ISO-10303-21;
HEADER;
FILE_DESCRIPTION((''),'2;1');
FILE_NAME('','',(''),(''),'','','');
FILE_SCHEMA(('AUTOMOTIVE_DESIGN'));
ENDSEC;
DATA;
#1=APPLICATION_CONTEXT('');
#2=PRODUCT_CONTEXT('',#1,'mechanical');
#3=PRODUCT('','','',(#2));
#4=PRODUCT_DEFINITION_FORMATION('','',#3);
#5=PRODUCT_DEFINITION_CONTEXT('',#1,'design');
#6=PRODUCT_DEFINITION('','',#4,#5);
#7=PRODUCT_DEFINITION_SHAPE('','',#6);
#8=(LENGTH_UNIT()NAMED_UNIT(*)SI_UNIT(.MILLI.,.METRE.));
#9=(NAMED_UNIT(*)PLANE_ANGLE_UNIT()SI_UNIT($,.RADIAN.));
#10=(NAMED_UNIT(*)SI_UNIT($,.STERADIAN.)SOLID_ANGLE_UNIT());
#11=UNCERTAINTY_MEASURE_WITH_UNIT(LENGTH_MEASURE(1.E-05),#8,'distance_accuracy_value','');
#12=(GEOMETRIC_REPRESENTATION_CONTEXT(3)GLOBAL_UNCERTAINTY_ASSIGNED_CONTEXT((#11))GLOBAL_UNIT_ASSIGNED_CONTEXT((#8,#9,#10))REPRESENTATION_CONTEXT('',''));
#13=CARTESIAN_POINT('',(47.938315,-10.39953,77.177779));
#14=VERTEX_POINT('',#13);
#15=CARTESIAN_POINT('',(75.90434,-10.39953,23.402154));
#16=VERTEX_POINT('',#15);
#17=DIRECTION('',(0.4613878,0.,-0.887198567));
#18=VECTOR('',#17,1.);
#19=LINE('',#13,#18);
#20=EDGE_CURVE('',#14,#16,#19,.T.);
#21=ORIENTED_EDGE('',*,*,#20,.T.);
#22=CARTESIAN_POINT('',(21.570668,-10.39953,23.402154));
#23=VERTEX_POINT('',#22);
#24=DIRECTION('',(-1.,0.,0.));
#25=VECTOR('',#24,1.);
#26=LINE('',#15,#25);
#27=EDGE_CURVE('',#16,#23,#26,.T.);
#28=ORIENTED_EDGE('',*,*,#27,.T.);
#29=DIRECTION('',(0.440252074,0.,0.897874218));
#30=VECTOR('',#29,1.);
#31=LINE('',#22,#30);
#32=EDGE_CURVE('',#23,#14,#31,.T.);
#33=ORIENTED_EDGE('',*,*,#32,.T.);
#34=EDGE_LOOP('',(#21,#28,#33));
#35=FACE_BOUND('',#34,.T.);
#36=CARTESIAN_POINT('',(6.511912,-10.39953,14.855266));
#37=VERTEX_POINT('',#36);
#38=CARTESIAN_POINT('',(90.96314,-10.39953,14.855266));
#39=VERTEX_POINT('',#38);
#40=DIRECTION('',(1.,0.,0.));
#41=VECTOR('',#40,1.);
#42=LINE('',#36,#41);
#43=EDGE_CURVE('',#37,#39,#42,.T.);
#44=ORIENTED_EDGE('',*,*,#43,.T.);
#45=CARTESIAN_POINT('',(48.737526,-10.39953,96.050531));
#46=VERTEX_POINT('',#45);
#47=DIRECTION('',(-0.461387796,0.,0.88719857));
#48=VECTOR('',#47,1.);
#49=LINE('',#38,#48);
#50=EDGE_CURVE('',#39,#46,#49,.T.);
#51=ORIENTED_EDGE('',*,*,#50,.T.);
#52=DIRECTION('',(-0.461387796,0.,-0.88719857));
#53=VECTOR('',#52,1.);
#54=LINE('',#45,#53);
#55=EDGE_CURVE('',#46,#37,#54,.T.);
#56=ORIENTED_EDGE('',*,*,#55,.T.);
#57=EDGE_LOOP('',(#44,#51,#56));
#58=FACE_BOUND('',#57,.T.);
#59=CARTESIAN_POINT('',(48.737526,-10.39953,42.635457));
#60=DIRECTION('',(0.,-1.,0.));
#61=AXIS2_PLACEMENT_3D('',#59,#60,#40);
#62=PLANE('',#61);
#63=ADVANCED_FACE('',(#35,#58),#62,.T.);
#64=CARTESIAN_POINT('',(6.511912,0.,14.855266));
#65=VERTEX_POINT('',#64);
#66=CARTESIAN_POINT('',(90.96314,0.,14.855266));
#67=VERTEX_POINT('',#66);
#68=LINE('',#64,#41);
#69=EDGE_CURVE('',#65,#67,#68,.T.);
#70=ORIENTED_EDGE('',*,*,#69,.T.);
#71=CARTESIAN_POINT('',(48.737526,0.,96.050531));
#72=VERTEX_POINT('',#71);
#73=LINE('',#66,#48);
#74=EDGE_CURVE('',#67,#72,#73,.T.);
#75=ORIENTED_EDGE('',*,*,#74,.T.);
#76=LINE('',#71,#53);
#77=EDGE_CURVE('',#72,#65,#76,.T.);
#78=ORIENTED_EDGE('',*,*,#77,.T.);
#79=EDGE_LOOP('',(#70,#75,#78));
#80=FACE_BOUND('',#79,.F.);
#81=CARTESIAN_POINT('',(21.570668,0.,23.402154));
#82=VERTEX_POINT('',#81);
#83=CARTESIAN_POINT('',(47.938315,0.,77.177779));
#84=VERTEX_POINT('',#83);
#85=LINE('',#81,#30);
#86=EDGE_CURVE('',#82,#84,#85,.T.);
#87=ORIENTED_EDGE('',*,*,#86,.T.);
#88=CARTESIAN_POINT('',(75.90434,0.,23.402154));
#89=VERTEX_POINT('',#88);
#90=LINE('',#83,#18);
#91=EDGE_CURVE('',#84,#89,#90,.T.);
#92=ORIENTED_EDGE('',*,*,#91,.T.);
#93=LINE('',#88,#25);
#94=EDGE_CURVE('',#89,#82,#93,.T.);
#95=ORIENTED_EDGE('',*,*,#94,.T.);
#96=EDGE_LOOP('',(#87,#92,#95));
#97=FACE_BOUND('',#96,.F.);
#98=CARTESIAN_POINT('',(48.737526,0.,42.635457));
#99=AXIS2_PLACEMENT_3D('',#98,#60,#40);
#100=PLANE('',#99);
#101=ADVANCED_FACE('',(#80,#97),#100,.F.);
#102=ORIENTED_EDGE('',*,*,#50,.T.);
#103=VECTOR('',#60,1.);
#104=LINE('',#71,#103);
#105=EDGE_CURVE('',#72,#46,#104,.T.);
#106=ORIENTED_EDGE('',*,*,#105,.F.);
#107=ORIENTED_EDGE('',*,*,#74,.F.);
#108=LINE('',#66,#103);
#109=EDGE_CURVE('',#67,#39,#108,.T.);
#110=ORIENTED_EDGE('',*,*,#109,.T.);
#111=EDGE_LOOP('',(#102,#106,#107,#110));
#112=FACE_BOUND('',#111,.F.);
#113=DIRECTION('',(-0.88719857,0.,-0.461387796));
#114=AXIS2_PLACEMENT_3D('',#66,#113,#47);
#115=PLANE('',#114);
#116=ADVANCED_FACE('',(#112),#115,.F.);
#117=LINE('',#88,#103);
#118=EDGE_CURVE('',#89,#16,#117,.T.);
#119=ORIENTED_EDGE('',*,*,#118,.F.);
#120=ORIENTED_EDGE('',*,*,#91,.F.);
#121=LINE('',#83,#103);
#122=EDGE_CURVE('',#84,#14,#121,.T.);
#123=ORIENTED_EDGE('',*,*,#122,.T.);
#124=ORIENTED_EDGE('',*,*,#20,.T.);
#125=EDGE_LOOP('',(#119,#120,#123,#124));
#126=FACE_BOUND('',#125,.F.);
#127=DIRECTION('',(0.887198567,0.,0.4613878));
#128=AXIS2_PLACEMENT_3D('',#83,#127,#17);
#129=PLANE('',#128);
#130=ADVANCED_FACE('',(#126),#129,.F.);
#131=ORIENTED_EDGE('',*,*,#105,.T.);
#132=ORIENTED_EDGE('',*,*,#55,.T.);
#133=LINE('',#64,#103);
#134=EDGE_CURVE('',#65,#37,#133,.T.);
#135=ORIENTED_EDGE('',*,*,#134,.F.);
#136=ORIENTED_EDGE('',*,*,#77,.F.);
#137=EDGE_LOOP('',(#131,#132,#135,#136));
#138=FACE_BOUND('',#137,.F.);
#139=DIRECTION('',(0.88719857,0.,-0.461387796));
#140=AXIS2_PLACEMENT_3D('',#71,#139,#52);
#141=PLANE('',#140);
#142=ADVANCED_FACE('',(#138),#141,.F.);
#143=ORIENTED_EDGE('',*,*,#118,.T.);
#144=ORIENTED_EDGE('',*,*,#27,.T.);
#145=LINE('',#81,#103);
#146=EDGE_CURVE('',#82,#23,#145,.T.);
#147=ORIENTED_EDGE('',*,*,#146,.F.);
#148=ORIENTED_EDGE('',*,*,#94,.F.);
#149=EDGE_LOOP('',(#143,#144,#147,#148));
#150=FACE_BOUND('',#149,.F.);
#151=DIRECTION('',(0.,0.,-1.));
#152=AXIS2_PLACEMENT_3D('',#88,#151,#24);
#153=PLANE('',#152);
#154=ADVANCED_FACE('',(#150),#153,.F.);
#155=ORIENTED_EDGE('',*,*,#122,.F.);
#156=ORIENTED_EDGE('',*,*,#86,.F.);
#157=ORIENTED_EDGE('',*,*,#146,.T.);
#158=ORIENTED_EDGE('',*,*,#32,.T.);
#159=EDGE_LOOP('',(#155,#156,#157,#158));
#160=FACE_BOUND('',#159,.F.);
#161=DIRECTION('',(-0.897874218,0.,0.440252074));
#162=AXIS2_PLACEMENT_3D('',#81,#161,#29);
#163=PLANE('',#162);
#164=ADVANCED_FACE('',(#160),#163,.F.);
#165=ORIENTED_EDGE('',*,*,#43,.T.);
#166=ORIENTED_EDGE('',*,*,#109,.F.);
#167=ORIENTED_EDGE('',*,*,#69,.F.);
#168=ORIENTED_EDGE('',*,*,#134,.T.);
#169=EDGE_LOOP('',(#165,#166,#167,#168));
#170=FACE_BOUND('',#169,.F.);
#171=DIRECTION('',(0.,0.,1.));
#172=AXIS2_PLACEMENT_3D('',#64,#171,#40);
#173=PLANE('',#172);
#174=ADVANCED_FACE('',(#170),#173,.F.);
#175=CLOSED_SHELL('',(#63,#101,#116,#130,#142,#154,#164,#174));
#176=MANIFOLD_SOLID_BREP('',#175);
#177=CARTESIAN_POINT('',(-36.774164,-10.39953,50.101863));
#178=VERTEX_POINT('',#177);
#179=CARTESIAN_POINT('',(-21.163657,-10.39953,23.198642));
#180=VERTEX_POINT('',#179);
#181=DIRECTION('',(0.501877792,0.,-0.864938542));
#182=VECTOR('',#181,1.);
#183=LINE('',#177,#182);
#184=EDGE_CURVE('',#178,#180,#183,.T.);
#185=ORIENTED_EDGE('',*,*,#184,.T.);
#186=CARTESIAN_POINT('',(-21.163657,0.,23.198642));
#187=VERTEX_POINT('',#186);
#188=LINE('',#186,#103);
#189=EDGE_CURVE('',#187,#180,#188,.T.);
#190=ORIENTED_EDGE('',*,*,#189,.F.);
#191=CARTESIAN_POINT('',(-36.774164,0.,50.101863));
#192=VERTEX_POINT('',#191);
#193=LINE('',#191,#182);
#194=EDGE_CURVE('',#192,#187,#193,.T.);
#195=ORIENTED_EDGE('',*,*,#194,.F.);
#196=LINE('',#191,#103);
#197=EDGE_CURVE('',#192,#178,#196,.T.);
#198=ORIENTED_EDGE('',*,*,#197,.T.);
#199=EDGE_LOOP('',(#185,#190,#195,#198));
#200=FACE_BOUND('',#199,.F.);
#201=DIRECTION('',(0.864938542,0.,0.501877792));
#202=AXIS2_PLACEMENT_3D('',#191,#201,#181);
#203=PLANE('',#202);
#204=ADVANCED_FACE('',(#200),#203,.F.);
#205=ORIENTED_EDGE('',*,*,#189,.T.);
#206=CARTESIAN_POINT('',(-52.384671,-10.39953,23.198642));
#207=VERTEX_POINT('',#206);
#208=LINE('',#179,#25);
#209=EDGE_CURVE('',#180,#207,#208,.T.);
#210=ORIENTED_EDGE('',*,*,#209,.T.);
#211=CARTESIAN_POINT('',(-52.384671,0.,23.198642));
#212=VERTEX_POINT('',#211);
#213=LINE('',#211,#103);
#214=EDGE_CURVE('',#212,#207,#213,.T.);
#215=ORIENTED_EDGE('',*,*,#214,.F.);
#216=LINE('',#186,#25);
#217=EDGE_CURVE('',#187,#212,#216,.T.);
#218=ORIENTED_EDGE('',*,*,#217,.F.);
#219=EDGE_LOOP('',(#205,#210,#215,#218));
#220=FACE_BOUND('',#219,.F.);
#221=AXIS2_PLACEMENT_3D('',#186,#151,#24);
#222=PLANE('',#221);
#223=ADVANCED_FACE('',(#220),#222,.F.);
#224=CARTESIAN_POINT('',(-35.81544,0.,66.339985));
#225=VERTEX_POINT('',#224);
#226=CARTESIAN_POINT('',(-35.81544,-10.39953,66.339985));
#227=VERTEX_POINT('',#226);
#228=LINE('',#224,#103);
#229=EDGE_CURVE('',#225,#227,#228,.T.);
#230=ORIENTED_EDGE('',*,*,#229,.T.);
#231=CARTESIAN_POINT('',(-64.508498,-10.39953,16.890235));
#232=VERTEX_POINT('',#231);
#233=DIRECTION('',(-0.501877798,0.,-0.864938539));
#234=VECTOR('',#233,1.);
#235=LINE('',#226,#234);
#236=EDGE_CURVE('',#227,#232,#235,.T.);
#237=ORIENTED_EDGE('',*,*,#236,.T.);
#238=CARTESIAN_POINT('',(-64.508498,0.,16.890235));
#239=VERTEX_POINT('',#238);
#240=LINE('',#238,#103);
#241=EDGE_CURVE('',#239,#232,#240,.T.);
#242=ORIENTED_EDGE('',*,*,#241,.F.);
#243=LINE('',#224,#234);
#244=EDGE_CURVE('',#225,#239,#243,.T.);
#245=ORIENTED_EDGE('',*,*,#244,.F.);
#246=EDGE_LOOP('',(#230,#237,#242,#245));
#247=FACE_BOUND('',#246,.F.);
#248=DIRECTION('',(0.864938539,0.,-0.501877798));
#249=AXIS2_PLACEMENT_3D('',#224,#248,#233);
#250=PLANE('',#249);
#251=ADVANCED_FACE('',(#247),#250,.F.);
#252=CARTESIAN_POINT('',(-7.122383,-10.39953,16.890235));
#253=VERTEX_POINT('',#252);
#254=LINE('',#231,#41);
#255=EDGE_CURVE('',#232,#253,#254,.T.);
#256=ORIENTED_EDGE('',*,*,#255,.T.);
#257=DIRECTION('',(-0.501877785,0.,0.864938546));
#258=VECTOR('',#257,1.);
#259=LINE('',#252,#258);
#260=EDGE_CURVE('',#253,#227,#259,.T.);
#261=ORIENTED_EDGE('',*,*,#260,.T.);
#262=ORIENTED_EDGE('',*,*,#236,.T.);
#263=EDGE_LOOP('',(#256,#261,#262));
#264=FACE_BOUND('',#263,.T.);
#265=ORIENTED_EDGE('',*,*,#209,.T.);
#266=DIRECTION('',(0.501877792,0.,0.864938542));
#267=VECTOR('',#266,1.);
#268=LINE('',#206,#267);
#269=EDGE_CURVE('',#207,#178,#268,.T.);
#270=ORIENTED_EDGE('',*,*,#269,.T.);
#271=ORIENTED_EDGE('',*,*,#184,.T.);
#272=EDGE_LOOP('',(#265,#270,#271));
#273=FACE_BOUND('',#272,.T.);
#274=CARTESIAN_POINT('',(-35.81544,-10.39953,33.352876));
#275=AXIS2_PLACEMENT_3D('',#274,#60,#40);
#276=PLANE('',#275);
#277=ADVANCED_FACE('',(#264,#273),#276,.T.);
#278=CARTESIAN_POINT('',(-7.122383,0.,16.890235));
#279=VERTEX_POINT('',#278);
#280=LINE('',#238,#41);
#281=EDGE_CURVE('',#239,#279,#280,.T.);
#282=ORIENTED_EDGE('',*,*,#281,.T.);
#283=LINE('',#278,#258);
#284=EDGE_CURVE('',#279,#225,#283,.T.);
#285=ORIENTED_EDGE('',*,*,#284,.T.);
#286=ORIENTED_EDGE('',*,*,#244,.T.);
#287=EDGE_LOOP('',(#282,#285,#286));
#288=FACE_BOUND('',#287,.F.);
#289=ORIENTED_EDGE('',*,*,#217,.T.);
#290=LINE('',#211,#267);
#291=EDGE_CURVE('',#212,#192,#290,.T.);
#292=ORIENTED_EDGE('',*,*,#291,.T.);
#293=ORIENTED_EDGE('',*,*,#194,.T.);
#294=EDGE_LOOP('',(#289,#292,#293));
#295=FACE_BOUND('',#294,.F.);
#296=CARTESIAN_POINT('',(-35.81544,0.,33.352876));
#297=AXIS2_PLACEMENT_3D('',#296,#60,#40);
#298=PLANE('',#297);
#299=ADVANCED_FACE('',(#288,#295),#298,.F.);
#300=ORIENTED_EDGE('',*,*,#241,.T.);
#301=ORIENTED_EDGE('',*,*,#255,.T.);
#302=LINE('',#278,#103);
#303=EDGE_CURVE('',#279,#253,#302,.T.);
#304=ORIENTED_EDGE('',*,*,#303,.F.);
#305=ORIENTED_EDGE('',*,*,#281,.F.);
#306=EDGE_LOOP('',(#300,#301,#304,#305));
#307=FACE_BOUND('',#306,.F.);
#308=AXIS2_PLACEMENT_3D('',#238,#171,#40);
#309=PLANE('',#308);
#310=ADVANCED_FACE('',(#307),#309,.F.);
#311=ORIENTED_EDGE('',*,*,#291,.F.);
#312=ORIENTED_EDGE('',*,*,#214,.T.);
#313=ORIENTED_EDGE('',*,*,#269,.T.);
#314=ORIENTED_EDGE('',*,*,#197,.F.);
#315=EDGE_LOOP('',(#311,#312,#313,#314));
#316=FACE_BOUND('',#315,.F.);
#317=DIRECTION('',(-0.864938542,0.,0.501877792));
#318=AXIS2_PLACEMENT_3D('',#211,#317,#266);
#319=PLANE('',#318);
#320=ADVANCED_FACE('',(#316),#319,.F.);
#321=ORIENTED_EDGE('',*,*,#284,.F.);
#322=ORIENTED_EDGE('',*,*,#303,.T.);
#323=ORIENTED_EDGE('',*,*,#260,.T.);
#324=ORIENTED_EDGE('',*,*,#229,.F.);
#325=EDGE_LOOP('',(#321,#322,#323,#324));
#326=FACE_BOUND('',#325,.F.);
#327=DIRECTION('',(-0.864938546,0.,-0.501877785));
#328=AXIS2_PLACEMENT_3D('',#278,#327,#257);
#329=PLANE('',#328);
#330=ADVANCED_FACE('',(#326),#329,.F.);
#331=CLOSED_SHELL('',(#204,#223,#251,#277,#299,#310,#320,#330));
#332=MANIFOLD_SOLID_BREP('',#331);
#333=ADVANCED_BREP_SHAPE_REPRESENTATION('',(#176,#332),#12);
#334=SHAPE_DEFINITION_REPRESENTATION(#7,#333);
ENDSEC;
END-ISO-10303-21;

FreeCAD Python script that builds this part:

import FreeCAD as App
import Part
import Sketcher

V = App.Vector
Q = App.Units.Quantity


def add_polygon(sketch, points):
    """Adds a closed chain of lines whose ends are joined by coincident constraints."""
    first, n = sketch.GeometryCount, len(points)
    for a, b in zip(points, points[1:] + points[:1]):
        sketch.addGeometry(Part.LineSegment(App.Vector(*a, 0), App.Vector(*b, 0)), False)
    for i in range(n):
        sketch.addConstraint(Sketcher.Constraint("Coincident", first + i, 2, first + (i + 1) % n, 1))

doc = App.newDocument("Part")
body = doc.addObject("PartDesign::Body", "Body")
body.AllowCompound = True

sketch1 = doc.addObject("Sketcher::SketchObject", "Sketch")
body.addObject(sketch1)
sketch1.AttachmentSupport = (doc.XZ_Plane, [""])
sketch1.MapMode = "FlatFace"
add_polygon(sketch1, [(49, 96), (7, 15), (91, 15)])
add_polygon(sketch1, [(48, 77), (76, 23), (22, 23)])
add_polygon(sketch1, [(-36, 66), (-65, 17), (-7, 17)])
add_polygon(sketch1, [(-37, 50), (-21, 23), (-52, 23)])
sketch1.addConstraint([
    Sketcher.Constraint("Horizontal", 1),
    Sketcher.Constraint("Horizontal", 4),
    Sketcher.Constraint("Horizontal", 7),
    Sketcher.Constraint("Horizontal", 10),
    Sketcher.Constraint("Parallel", 2, 3),
    Sketcher.Constraint("Parallel", 8, 9),
    Sketcher.Constraint("Parallel", 6, 11),
    Sketcher.Constraint("Equal", 0, 2),
    Sketcher.Constraint("Equal", 6, 8),
    Sketcher.Constraint("Distance", 9, Q("31.1042 mm")),
    Sketcher.Constraint("DistanceX", 1, 1, 1, 2, Q("84.451228 mm")),
    Sketcher.Constraint("DistanceX", 6, 2, -1, 1, Q("64.508498 mm")),
    Sketcher.Constraint("DistanceX", 3, 2, 1, 2, Q("15.0588 mm")),
    Sketcher.Constraint("DistanceX", 7, 2, 5, 2, Q("55.060698 mm")),
    Sketcher.Constraint("Distance", 3, Q("60.61284 mm")),
    Sketcher.Constraint("Distance", 5, Q("59.892159 mm")),
    Sketcher.Constraint("DistanceX", 4, 2, 4, 1, Q("54.333672 mm")),
    Sketcher.Constraint("DistanceX", 7, 1, 7, 2, Q("57.386115 mm")),
    Sketcher.Constraint("DistanceX", 10, 2, 10, 1, Q("31.221014 mm")),
    Sketcher.Constraint("DistanceY", -1, 1, 2, 2, Q("96.050531 mm")),
    Sketcher.Constraint("DistanceY", -1, 1, 5, 2, Q("77.177779 mm")),
    Sketcher.Constraint("DistanceY", -1, 1, 9, 2, Q("23.198642 mm")),
    Sketcher.Constraint("DistanceX", 10, 2, -1, 1, Q("52.384671 mm")),
    Sketcher.Constraint("DistanceY", 0, 2, 6, 2, Q("2.034969 mm")),
])
pad1 = doc.addObject("PartDesign::Pad", "Pad")
body.addObject(pad1)
pad1.Profile = sketch1
pad1.Length = 10.39953

doc.recompute()
